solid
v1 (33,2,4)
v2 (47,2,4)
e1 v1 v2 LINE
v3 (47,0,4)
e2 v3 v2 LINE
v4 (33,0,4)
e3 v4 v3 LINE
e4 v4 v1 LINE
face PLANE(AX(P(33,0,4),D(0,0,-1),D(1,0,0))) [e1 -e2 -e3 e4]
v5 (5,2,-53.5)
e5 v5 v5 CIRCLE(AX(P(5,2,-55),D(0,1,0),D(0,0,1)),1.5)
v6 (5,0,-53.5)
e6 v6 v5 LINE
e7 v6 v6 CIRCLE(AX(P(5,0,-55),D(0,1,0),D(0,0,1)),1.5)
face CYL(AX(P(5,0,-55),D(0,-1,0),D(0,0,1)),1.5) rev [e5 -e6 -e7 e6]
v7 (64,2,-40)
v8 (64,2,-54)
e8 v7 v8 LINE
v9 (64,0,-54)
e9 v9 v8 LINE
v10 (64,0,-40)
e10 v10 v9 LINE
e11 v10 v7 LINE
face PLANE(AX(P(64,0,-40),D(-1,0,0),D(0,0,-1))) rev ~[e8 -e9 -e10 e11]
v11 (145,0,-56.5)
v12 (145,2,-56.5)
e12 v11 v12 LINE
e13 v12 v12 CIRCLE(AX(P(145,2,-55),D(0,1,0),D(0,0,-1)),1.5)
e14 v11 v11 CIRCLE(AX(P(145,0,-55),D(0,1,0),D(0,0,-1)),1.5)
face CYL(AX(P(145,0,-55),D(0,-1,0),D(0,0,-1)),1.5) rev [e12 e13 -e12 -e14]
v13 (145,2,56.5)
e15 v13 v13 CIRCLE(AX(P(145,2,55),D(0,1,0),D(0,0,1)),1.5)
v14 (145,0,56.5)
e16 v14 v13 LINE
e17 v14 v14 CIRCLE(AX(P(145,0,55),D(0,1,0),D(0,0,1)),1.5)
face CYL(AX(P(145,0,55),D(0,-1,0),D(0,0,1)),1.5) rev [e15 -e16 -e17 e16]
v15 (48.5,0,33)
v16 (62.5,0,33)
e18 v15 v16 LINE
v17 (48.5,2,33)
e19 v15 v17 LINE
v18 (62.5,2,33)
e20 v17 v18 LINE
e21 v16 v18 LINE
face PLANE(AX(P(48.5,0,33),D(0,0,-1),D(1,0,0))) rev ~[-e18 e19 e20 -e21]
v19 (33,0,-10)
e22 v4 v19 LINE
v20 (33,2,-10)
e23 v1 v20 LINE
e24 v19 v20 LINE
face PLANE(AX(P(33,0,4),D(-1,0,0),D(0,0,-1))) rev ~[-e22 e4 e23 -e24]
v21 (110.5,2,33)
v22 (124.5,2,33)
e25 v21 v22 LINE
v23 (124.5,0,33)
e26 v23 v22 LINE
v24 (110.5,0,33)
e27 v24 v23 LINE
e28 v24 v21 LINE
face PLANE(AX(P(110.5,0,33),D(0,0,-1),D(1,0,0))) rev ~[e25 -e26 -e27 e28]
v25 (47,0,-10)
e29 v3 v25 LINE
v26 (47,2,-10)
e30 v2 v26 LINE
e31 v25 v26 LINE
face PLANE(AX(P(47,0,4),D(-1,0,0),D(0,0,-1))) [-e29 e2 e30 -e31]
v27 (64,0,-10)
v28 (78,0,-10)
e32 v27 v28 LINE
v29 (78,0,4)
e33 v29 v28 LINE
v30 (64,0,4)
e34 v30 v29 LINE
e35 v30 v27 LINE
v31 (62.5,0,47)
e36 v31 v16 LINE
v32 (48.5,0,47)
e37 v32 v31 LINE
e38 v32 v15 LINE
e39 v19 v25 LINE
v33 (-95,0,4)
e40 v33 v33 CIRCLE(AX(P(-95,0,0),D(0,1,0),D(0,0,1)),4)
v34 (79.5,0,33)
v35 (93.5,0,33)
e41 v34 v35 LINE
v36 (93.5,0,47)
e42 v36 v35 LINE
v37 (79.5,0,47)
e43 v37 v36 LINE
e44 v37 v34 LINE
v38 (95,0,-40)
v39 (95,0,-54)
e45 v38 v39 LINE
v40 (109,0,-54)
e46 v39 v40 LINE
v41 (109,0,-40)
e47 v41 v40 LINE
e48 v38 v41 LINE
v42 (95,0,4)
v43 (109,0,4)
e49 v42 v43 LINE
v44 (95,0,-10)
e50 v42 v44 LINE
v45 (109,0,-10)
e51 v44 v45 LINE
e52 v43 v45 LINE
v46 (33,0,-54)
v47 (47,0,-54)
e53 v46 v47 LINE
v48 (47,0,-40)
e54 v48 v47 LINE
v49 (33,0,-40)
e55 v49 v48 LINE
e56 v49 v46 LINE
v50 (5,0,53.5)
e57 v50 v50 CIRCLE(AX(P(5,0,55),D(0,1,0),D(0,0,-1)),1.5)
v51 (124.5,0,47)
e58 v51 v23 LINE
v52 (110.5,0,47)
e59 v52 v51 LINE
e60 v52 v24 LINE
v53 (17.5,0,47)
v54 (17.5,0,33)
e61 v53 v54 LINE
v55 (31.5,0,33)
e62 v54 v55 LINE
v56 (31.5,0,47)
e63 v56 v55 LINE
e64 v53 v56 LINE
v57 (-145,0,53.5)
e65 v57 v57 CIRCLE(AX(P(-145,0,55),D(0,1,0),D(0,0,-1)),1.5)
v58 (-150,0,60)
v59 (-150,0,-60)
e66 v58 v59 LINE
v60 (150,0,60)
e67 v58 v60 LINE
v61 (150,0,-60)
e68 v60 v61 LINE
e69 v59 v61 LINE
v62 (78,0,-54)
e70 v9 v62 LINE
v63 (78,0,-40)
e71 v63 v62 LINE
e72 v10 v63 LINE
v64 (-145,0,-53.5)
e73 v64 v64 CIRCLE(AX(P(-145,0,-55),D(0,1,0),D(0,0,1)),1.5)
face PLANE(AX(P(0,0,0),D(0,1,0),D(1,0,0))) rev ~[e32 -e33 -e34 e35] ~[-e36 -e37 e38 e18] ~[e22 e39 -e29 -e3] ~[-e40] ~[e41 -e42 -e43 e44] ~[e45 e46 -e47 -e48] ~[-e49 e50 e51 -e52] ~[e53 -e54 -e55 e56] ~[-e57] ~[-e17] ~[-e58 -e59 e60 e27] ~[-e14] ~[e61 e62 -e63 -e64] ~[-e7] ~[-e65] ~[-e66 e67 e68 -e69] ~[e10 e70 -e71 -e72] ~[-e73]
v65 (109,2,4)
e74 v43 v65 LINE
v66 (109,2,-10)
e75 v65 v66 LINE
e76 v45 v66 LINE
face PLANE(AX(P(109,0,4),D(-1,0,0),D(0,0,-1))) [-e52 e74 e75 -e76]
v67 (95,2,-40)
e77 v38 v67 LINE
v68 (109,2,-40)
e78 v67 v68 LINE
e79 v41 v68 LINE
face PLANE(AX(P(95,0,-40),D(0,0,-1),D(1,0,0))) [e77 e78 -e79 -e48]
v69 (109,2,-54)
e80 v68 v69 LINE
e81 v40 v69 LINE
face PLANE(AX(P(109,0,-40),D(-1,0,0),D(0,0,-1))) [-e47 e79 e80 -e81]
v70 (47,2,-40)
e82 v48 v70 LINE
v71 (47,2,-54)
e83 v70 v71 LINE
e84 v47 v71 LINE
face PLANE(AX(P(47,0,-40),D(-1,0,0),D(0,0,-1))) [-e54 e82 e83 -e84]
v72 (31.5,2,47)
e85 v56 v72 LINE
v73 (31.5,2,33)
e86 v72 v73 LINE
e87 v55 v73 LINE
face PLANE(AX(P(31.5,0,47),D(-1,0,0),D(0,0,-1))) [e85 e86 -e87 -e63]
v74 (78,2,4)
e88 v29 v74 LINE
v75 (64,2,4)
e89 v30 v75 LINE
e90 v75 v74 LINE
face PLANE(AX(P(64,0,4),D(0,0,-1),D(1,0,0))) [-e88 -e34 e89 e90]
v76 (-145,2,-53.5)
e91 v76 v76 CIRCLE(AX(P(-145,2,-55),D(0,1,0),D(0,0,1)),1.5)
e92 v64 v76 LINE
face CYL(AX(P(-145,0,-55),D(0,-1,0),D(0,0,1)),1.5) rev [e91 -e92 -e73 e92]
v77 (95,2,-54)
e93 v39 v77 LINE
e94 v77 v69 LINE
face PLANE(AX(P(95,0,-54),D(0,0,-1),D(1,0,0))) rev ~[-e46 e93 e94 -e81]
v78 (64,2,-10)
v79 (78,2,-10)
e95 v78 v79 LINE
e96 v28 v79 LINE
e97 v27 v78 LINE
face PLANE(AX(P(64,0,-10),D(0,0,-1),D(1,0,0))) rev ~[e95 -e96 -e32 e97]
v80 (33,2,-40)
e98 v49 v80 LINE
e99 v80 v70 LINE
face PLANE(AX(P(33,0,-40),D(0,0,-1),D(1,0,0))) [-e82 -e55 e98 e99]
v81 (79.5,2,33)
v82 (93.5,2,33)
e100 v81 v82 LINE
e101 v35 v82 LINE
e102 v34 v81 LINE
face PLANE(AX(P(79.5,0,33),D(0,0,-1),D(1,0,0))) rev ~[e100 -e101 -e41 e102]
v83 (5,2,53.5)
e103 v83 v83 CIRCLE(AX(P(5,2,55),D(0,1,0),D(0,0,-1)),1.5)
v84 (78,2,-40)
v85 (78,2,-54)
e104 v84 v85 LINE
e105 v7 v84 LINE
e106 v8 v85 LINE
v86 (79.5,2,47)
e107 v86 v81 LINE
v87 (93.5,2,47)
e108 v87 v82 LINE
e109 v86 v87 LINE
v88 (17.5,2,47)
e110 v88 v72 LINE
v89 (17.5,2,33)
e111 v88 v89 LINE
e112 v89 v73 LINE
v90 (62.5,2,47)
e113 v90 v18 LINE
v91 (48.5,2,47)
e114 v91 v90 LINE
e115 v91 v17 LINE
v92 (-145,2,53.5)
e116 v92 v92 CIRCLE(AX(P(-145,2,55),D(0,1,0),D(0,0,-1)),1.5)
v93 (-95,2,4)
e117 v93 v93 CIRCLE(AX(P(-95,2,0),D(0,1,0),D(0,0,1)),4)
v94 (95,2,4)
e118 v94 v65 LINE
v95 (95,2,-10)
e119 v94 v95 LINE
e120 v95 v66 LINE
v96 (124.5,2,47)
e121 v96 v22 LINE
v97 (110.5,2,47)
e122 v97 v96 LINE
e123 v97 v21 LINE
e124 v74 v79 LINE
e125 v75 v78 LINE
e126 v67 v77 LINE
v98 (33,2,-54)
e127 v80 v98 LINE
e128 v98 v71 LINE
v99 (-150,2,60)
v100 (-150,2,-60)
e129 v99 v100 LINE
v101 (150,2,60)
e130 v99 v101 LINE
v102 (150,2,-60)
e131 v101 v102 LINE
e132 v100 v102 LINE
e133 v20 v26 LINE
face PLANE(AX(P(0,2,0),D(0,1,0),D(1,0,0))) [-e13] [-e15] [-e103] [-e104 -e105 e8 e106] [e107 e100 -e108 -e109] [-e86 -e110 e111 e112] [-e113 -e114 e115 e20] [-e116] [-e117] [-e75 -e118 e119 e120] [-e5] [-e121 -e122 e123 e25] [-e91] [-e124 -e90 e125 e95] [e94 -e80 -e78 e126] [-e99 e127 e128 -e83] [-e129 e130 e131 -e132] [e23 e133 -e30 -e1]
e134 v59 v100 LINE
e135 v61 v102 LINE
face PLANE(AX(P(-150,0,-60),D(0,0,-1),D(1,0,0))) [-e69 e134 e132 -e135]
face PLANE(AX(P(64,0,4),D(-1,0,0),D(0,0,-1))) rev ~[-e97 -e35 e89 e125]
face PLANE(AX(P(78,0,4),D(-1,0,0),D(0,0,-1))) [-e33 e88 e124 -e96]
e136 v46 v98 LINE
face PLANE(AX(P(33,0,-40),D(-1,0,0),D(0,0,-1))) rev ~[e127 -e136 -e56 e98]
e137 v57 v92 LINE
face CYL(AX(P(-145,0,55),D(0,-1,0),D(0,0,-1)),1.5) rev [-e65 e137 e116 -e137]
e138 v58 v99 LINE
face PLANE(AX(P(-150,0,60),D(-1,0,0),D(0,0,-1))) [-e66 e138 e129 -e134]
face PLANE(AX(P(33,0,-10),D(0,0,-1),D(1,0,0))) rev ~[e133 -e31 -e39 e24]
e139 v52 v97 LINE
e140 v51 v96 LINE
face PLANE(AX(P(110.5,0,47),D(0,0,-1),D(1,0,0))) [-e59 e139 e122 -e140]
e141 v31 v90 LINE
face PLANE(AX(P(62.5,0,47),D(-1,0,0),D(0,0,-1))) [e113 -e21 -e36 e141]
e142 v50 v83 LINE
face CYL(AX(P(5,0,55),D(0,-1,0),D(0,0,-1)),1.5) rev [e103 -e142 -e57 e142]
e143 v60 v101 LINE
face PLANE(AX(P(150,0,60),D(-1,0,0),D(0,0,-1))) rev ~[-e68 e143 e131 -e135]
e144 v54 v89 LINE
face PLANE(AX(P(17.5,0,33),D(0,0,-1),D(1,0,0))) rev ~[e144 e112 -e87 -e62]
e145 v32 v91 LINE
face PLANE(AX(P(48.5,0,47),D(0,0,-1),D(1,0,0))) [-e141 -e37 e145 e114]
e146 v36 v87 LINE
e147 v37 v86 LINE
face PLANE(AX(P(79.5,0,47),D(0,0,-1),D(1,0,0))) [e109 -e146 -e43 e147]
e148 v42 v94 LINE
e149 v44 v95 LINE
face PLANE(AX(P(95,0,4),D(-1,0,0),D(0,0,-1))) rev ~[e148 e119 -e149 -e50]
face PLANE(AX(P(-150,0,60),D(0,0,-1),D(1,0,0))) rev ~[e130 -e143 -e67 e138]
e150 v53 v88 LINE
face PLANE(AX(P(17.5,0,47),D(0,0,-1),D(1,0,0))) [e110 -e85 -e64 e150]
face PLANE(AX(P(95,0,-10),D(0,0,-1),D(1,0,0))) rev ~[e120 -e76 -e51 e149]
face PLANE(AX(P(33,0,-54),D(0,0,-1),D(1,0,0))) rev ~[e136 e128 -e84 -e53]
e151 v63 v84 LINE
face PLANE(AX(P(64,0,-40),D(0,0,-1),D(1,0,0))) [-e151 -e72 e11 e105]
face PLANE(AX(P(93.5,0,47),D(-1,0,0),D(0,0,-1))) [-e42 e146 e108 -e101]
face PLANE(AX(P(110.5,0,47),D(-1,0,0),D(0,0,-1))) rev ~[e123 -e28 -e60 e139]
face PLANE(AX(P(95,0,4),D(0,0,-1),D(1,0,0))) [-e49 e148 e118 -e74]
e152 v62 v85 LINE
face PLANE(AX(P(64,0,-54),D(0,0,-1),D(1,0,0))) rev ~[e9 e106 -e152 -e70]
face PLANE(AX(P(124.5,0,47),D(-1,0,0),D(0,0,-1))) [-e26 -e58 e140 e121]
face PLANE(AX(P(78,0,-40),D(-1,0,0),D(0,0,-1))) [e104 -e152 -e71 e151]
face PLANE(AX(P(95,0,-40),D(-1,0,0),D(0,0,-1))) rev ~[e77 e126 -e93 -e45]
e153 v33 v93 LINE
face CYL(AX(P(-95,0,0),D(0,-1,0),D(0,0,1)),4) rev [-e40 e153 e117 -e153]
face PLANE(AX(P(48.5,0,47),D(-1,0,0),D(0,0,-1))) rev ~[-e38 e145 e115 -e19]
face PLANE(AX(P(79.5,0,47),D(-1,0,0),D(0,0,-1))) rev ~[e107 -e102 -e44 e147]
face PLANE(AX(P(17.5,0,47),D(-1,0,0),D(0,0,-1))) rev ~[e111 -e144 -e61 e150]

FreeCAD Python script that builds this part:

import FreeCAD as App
import Part
import Sketcher
from FreeCAD import Vector
Q = App.Units.Quantity

doc = App.newDocument("Part")
body = doc.addObject("PartDesign::Body", "Body")

# Sketch on XZ plane
sketch1 = body.newObject("Sketcher::SketchObject", "Sketch")
sketch1.AttachmentSupport = (doc.getObject("XZ_Plane"), [""])
sketch1.MapMode = "FlatFace"
sketch1.addGeometry([
    Part.LineSegment(Vector(-150, -60, 0), Vector(-150, 60, 0)),  # 0
    Part.LineSegment(Vector(-150, 60, 0), Vector(150, 60, 0)),  # 1
    Part.LineSegment(Vector(150, 60, 0), Vector(150, -60, 0)),  # 2
    Part.LineSegment(Vector(150, -60, 0), Vector(-150, -60, 0)),  # 3
    Part.Circle(Vector(-145, 55, 0), Vector(0, 0, 1), 1.5),  # 4
    Part.Circle(Vector(5, 55, 0), Vector(0, 0, 1), 1.5),  # 5
    Part.LineSegment(Vector(31.5, 47, 0), Vector(17.5, 47, 0)),  # 6
    Part.LineSegment(Vector(17.5, 47, 0), Vector(17.5, 33, 0)),  # 7
    Part.LineSegment(Vector(17.5, 33, 0), Vector(31.5, 33, 0)),  # 8
    Part.LineSegment(Vector(31.5, 33, 0), Vector(31.5, 47, 0)),  # 9
    Part.LineSegment(Vector(62.5, 47, 0), Vector(48.5, 47, 0)),  # 10
    Part.LineSegment(Vector(48.5, 47, 0), Vector(48.5, 33, 0)),  # 11
    Part.LineSegment(Vector(48.5, 33, 0), Vector(62.5, 33, 0)),  # 12
    Part.LineSegment(Vector(62.5, 33, 0), Vector(62.5, 47, 0)),  # 13
    Part.Circle(Vector(145, 55, 0), Vector(0, 0, 1), 1.5),  # 14
    Part.LineSegment(Vector(93.5, 47, 0), Vector(79.5, 47, 0)),  # 15
    Part.LineSegment(Vector(79.5, 47, 0), Vector(79.5, 33, 0)),  # 16
    Part.LineSegment(Vector(79.5, 33, 0), Vector(93.5, 33, 0)),  # 17
    Part.LineSegment(Vector(93.5, 33, 0), Vector(93.5, 47, 0)),  # 18
    Part.LineSegment(Vector(124.5, 47, 0), Vector(110.5, 47, 0)),  # 19
    Part.LineSegment(Vector(110.5, 47, 0), Vector(110.5, 33, 0)),  # 20
    Part.LineSegment(Vector(110.5, 33, 0), Vector(124.5, 33, 0)),  # 21
    Part.LineSegment(Vector(124.5, 33, 0), Vector(124.5, 47, 0)),  # 22
    Part.Circle(Vector(-95, 0, 0), Vector(0, 0, 1), 4),  # 23
    Part.Circle(Vector(-145, -55, 0), Vector(0, 0, 1), 1.5),  # 24
    Part.LineSegment(Vector(47, 4, 0), Vector(33, 4, 0)),  # 25
    Part.LineSegment(Vector(33, 4, 0), Vector(33, -10, 0)),  # 26
    Part.LineSegment(Vector(33, -10, 0), Vector(47, -10, 0)),  # 27
    Part.LineSegment(Vector(47, -10, 0), Vector(47, 4, 0)),  # 28
    Part.LineSegment(Vector(78, 4, 0), Vector(64, 4, 0)),  # 29
    Part.LineSegment(Vector(64, 4, 0), Vector(64, -10, 0)),  # 30
    Part.LineSegment(Vector(64, -10, 0), Vector(78, -10, 0)),  # 31
    Part.LineSegment(Vector(78, -10, 0), Vector(78, 4, 0)),  # 32
    Part.LineSegment(Vector(109, 4, 0), Vector(95, 4, 0)),  # 33
    Part.LineSegment(Vector(95, 4, 0), Vector(95, -10, 0)),  # 34
    Part.LineSegment(Vector(95, -10, 0), Vector(109, -10, 0)),  # 35
    Part.LineSegment(Vector(109, -10, 0), Vector(109, 4, 0)),  # 36
    Part.Circle(Vector(5, -55, 0), Vector(0, 0, 1), 1.5),  # 37
    Part.LineSegment(Vector(47, -40, 0), Vector(33, -40, 0)),  # 38
    Part.LineSegment(Vector(33, -40, 0), Vector(33, -54, 0)),  # 39
    Part.LineSegment(Vector(33, -54, 0), Vector(47, -54, 0)),  # 40
    Part.LineSegment(Vector(47, -54, 0), Vector(47, -40, 0)),  # 41
    Part.LineSegment(Vector(78, -40, 0), Vector(64, -40, 0)),  # 42
    Part.LineSegment(Vector(64, -40, 0), Vector(64, -54, 0)),  # 43
    Part.LineSegment(Vector(64, -54, 0), Vector(78, -54, 0)),  # 44
    Part.LineSegment(Vector(78, -54, 0), Vector(78, -40, 0)),  # 45
    Part.LineSegment(Vector(109, -40, 0), Vector(95, -40, 0)),  # 46
    Part.LineSegment(Vector(95, -40, 0), Vector(95, -54, 0)),  # 47
    Part.LineSegment(Vector(95, -54, 0), Vector(109, -54, 0)),  # 48
    Part.LineSegment(Vector(109, -54, 0), Vector(109, -40, 0)),  # 49
    Part.Circle(Vector(145, -55, 0), Vector(0, 0, 1), 1.5),  # 50
], False)
sketch1.addConstraint([
    Sketcher.Constraint("Coincident", 0, 2, 1, 1),
    Sketcher.Constraint("Coincident", 1, 2, 2, 1),
    Sketcher.Constraint("Coincident", 2, 2, 3, 1),
    Sketcher.Constraint("Coincident", 3, 2, 0, 1),
    Sketcher.Constraint("Coincident", 6, 2, 7, 1),
    Sketcher.Constraint("Coincident", 7, 2, 8, 1),
    Sketcher.Constraint("Coincident", 8, 2, 9, 1),
    Sketcher.Constraint("Coincident", 9, 2, 6, 1),
    Sketcher.Constraint("Coincident", 10, 2, 11, 1),
    Sketcher.Constraint("Coincident", 11, 2, 12, 1),
    Sketcher.Constraint("Coincident", 12, 2, 13, 1),
    Sketcher.Constraint("Coincident", 13, 2, 10, 1),
    Sketcher.Constraint("Coincident", 15, 2, 16, 1),
    Sketcher.Constraint("Coincident", 16, 2, 17, 1),
    Sketcher.Constraint("Coincident", 17, 2, 18, 1),
    Sketcher.Constraint("Coincident", 18, 2, 15, 1),
    Sketcher.Constraint("Coincident", 19, 2, 20, 1),
    Sketcher.Constraint("Coincident", 20, 2, 21, 1),
    Sketcher.Constraint("Coincident", 21, 2, 22, 1),
    Sketcher.Constraint("Coincident", 22, 2, 19, 1),
    Sketcher.Constraint("Coincident", 25, 2, 26, 1),
    Sketcher.Constraint("Coincident", 26, 2, 27, 1),
    Sketcher.Constraint("Coincident", 27, 2, 28, 1),
    Sketcher.Constraint("Coincident", 28, 2, 25, 1),
    Sketcher.Constraint("Coincident", 29, 2, 30, 1),
    Sketcher.Constraint("Coincident", 30, 2, 31, 1),
    Sketcher.Constraint("Coincident", 31, 2, 32, 1),
    Sketcher.Constraint("Coincident", 32, 2, 29, 1),
    Sketcher.Constraint("Coincident", 33, 2, 34, 1),
    Sketcher.Constraint("Coincident", 34, 2, 35, 1),
    Sketcher.Constraint("Coincident", 35, 2, 36, 1),
    Sketcher.Constraint("Coincident", 36, 2, 33, 1),
    Sketcher.Constraint("Coincident", 38, 2, 39, 1),
    Sketcher.Constraint("Coincident", 39, 2, 40, 1),
    Sketcher.Constraint("Coincident", 40, 2, 41, 1),
    Sketcher.Constraint("Coincident", 41, 2, 38, 1),
    Sketcher.Constraint("Coincident", 42, 2, 43, 1),
    Sketcher.Constraint("Coincident", 43, 2, 44, 1),
    Sketcher.Constraint("Coincident", 44, 2, 45, 1),
    Sketcher.Constraint("Coincident", 45, 2, 42, 1),
    Sketcher.Constraint("Coincident", 46, 2, 47, 1),
    Sketcher.Constraint("Coincident", 47, 2, 48, 1),
    Sketcher.Constraint("Coincident", 48, 2, 49, 1),
    Sketcher.Constraint("Coincident", 49, 2, 46, 1),
    Sketcher.Constraint("Vertical", 0),
    Sketcher.Constraint("Horizontal", 1),
    Sketcher.Constraint("Vertical", 2),
    Sketcher.Constraint("Horizontal", 3),
    Sketcher.Constraint("Horizontal", 6),
    Sketcher.Constraint("Vertical", 7),
    Sketcher.Constraint("Horizontal", 8),
    Sketcher.Constraint("Vertical", 9),
    Sketcher.Constraint("Horizontal", 10),
    Sketcher.Constraint("Vertical", 11),
    Sketcher.Constraint("Horizontal", 12),
    Sketcher.Constraint("Vertical", 13),
    Sketcher.Constraint("Horizontal", 15),
    Sketcher.Constraint("Vertical", 16),
    Sketcher.Constraint("Horizontal", 17),
    Sketcher.Constraint("Vertical", 18),
    Sketcher.Constraint("Horizontal", 19),
    Sketcher.Constraint("Vertical", 20),
    Sketcher.Constraint("Horizontal", 21),
    Sketcher.Constraint("Vertical", 22),
    Sketcher.Constraint("Horizontal", 25),
    Sketcher.Constraint("Vertical", 26),
    Sketcher.Constraint("Horizontal", 27),
    Sketcher.Constraint("Vertical", 28),
    Sketcher.Constraint("Horizontal", 29),
    Sketcher.Constraint("Vertical", 30),
    Sketcher.Constraint("Horizontal", 31),
    Sketcher.Constraint("Vertical", 32),
    Sketcher.Constraint("Horizontal", 33),
    Sketcher.Constraint("Vertical", 34),
    Sketcher.Constraint("Horizontal", 35),
    Sketcher.Constraint("Vertical", 36),
    Sketcher.Constraint("Horizontal", 38),
    Sketcher.Constraint("Vertical", 39),
    Sketcher.Constraint("Horizontal", 40),
    Sketcher.Constraint("Vertical", 41),
    Sketcher.Constraint("Horizontal", 42),
    Sketcher.Constraint("Vertical", 43),
    Sketcher.Constraint("Horizontal", 44),
    Sketcher.Constraint("Vertical", 45),
    Sketcher.Constraint("Horizontal", 46),
    Sketcher.Constraint("Vertical", 47),
    Sketcher.Constraint("Horizontal", 48),
    Sketcher.Constraint("Vertical", 49),
    Sketcher.Constraint("Equal", 4, 5),
    Sketcher.Constraint("Equal", 5, 14),
    Sketcher.Constraint("Equal", 14, 24),
    Sketcher.Constraint("Equal", 24, 37),
    Sketcher.Constraint("Equal", 37, 50),
    Sketcher.Constraint("Symmetric", 14, 3, 24, 3, -1, 1),
    Sketcher.Constraint("Symmetric", 4, 3, 50, 3, -1, 1),
    Sketcher.Constraint("Symmetric", 0, 2, 2, 2, -1, 1),
    Sketcher.Constraint("Symmetric", 4, 3, 14, 3, -2),
    Sketcher.Constraint("Symmetric", 5, 3, 37, 3, -1),
    Sketcher.Constraint("PointOnObject", 23, 3, -1),
    Sketcher.Constraint("Horizontal", 4, 3, 5, 3),
    Sketcher.Constraint("Horizontal", 9, 2, 10, 2),
    Sketcher.Constraint("Horizontal", 8, 2, 11, 2),
    Sketcher.Constraint("Horizontal", 13, 2, 15, 2),
    Sketcher.Constraint("Horizontal", 12, 2, 16, 2),
    Sketcher.Constraint("Horizontal", 18, 2, 19, 2),
    Sketcher.Constraint("Horizontal", 17, 2, 20, 2),
    Sketcher.Constraint("Horizontal", 28, 2, 29, 2),
    Sketcher.Constraint("Horizontal", 27, 2, 30, 2),
    Sketcher.Constraint("Horizontal", 32, 2, 33, 2),
    Sketcher.Constraint("Horizontal", 31, 2, 34, 2),
    Sketcher.Constraint("Horizontal", 41, 2, 42, 2),
    Sketcher.Constraint("Horizontal", 40, 2, 43, 2),
    Sketcher.Constraint("Horizontal", 45, 2, 46, 2),
    Sketcher.Constraint("Horizontal", 44, 2, 47, 2),
    Sketcher.Constraint("Vertical", 26, 2, 38, 2),
    Sketcher.Constraint("Vertical", 28, 2, 40, 2),
    Sketcher.Constraint("Vertical", 30, 2, 42, 2),
    Sketcher.Constraint("Vertical", 32, 2, 44, 2),
    Sketcher.Constraint("Vertical", 34, 2, 46, 2),
    Sketcher.Constraint("Vertical", 36, 2, 48, 2),
    Sketcher.Constraint("Equal", 8, 10),
    Sketcher.Constraint("Equal", 12, 15),
    Sketcher.Constraint("Equal", 17, 19),
    Sketcher.Constraint("Equal", 21, 25),
    Sketcher.Constraint("Equal", 27, 29),
    Sketcher.Constraint("Equal", 31, 33),
    Sketcher.Constraint("Equal", 48, 7),
    Sketcher.Constraint("Equal", 22, 26),
    Sketcher.Constraint("Equal", 36, 39),
    Sketcher.Constraint("Diameter", 4, Q("3 mm")),
    Sketcher.Constraint("Diameter", 23, Q("8 mm")),
    Sketcher.Constraint("DistanceX", 1, 1, 1, 2, Q("300 mm")),
    Sketcher.Constraint("DistanceX", 6, 2, 6, 1, Q("14 mm")),
    Sketcher.Constraint("DistanceY", 0, 1, 0, 2, Q("120 mm")),
    Sketcher.Constraint("DistanceX", 4, 3, -1, 1, Q("145 mm")),
    Sketcher.Constraint("DistanceY", -1, 1, 4, 3, Q("55 mm")),
    Sketcher.Constraint("DistanceX", -1, 1, 5, 3, Q("5 mm")),
    Sketcher.Constraint("DistanceX", 23, 3, -1, 1, Q("95 mm")),
    Sketcher.Constraint("DistanceY", -1, 1, 6, 2, Q("47 mm")),
    Sketcher.Constraint("DistanceX", -1, 1, 25, 2, Q("33 mm")),
    Sketcher.Constraint("DistanceY", -1, 1, 25, 2, Q("4 mm")),
    Sketcher.Constraint("DistanceX", -1, 1, 29, 2, Q("64 mm")),
    Sketcher.Constraint("DistanceX", -1, 1, 33, 2, Q("95 mm")),
    Sketcher.Constraint("DistanceY", 38, 2, -1, 1, Q("40 mm")),
    Sketcher.Constraint("DistanceX", 9, 2, 10, 2, Q("17 mm")),
    Sketcher.Constraint("DistanceX", 13, 2, 15, 2, Q("17 mm")),
    Sketcher.Constraint("DistanceX", 18, 2, 19, 2, Q("17 mm")),
    Sketcher.Constraint("DistanceX", -1, 1, 6, 2, Q("17.5 mm")),
])
pad1 = body.newObject("PartDesign::Pad", "Pad")
pad1.Profile = sketch1
pad1.Length = 2
pad1.Reversed = True

doc.recompute()
